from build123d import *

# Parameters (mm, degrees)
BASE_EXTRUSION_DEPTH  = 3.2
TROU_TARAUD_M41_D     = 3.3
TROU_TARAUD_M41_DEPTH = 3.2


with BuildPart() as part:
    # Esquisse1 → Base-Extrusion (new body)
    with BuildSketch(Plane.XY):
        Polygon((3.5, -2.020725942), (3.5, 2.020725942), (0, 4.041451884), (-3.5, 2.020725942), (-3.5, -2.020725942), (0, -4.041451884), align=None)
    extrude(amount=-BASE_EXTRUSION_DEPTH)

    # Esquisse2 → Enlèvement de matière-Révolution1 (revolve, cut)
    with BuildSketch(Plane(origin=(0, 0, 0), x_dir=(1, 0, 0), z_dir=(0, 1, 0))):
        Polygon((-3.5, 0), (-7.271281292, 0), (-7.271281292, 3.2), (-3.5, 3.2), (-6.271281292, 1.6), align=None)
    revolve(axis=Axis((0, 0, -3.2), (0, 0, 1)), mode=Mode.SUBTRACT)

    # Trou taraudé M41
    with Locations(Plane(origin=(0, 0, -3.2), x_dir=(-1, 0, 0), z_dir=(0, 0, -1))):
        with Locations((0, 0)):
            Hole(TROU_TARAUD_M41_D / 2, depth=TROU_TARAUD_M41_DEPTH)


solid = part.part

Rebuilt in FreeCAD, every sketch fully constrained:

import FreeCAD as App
import Part
import Sketcher
from FreeCAD import Vector
Q = App.Units.Quantity

doc = App.newDocument("Part")
body = doc.addObject("PartDesign::Body", "Body")

# Sketch on XY plane
sketch1 = body.newObject("Sketcher::SketchObject", "Sketch")
sketch1.AttachmentSupport = (doc.getObject("XY_Plane"), [""])
sketch1.MapMode = "FlatFace"
sketch1.addGeometry(Part.LineSegment(Vector(3.5, -2, 0), Vector(3.5, 2, 0)), False)
sketch1.addGeometry(Part.LineSegment(Vector(3.5, 2, 0), Vector(0, 4, 0)), False)
sketch1.addGeometry(Part.LineSegment(Vector(0, 4, 0), Vector(-3.5, 2, 0)), False)
sketch1.addGeometry(Part.LineSegment(Vector(-3.5, 2, 0), Vector(-3.5, -2, 0)), False)
sketch1.addGeometry(Part.LineSegment(Vector(-3.5, -2, 0), Vector(0, -4, 0)), False)
sketch1.addGeometry(Part.LineSegment(Vector(0, -4, 0), Vector(3.5, -2, 0)), False)
sketch1.addConstraint(Sketcher.Constraint("Coincident", 0, 2, 1, 1))
sketch1.addConstraint(Sketcher.Constraint("Coincident", 1, 2, 2, 1))
sketch1.addConstraint(Sketcher.Constraint("Coincident", 2, 2, 3, 1))
sketch1.addConstraint(Sketcher.Constraint("Coincident", 3, 2, 4, 1))
sketch1.addConstraint(Sketcher.Constraint("Coincident", 4, 2, 5, 1))
sketch1.addConstraint(Sketcher.Constraint("Coincident", 5, 2, 0, 1))
sketch1.addConstraint(Sketcher.Constraint("Vertical", 0))
sketch1.addConstraint(Sketcher.Constraint("Vertical", 3))
sketch1.addConstraint(Sketcher.Constraint("Symmetric", 0, 2, 3, 2, -1, 1))
sketch1.addConstraint(Sketcher.Constraint("Symmetric", 1, 2, 4, 2, -1, 1))
sketch1.addConstraint(Sketcher.Constraint("PointOnObject", 1, 2, -2))
sketch1.addConstraint(Sketcher.Constraint("Parallel", 2, 5))
sketch1.addConstraint(Sketcher.Constraint("Horizontal", 0, 2, 2, 2))
sketch1.addConstraint(Sketcher.Constraint("Angle", 1, Q("150 deg")))
sketch1.addConstraint(Sketcher.Constraint("DistanceX", 2, 2, 0, 2, Q("7 mm")))
sketch1.addConstraint(Sketcher.Constraint("DistanceY", 0, 1, 0, 2, Q("4.041452 mm")))
pad1 = body.newObject("PartDesign::Pad", "Pad")
pad1.Profile = sketch1
pad1.Length = 3.2
pad1.Reversed = True

# Sketch on XZ plane
sketch2 = body.newObject("Sketcher::SketchObject", "Sketch001")
sketch2.AttachmentSupport = (doc.getObject("XZ_Plane"), [""])
sketch2.MapMode = "FlatFace"
sketch2.addGeometry(Part.LineSegment(Vector(-7.3, 0, 0), Vector(-3.5, 0, 0)), False)
sketch2.addGeometry(Part.LineSegment(Vector(-3.5, 0, 0), Vector(-6.3, -1.6, 0)), False)
sketch2.addGeometry(Part.LineSegment(Vector(-6.3, -1.6, 0), Vector(-3.5, -3.2, 0)), False)
sketch2.addGeometry(Part.LineSegment(Vector(-3.5, -3.2, 0), Vector(-7.3, -3.2, 0)), False)
sketch2.addGeometry(Part.LineSegment(Vector(-7.3, -3.2, 0), Vector(-7.3, 0, 0)), False)
sketch2.addConstraint(Sketcher.Constraint("Coincident", 0, 2, 1, 1))
sketch2.addConstraint(Sketcher.Constraint("Coincident", 1, 2, 2, 1))
sketch2.addConstraint(Sketcher.Constraint("Coincident", 2, 2, 3, 1))
sketch2.addConstraint(Sketcher.Constraint("Coincident", 3, 2, 4, 1))
sketch2.addConstraint(Sketcher.Constraint("Coincident", 4, 2, 0, 1))
sketch2.addConstraint(Sketcher.Constraint("Horizontal", 0))
sketch2.addConstraint(Sketcher.Constraint("Horizontal", 3))
sketch2.addConstraint(Sketcher.Constraint("Vertical", 4))
sketch2.addConstraint(Sketcher.Constraint("PointOnObject", 0, 2, -1))
sketch2.addConstraint(Sketcher.Constraint("Vertical", 0, 2, 2, 2))
sketch2.addConstraint(Sketcher.Constraint("Equal", 1, 2))
sketch2.addConstraint(Sketcher.Constraint("Angle", 1, Q("-150 deg")))
sketch2.addConstraint(Sketcher.Constraint("DistanceY", 4, 1, 4, 2, Q("3.2 mm")))
sketch2.addConstraint(Sketcher.Constraint("DistanceX", 3, 2, 1, 2, Q("1 mm")))
sketch2.addConstraint(Sketcher.Constraint("DistanceX", 0, 2, -1, 1, Q("3.5 mm")))
groove = body.newObject("PartDesign::Groove", "Groove")
groove.Profile = sketch2
groove.ReferenceAxis = (sketch2, ["V_Axis"])
groove.Angle = 360

# Sketch on XY plane
sketch3 = body.newObject("Sketcher::SketchObject", "Sketch002")
sketch3.AttachmentSupport = (doc.getObject("XY_Plane"), [""])
sketch3.MapMode = "FlatFace"
sketch3.AttachmentOffset = App.Placement(Vector(0, 0, -3.2), App.Rotation())
sketch3.addGeometry(Part.Circle(Vector(0, 0, 0), Vector(0, 0, 1), 1.6), False)
sketch3.addConstraint(Sketcher.Constraint("Coincident", 0, 3, -1, 1))
sketch3.addConstraint(Sketcher.Constraint("Diameter", 0, Q("3.3 mm")))
doc.recompute()
hole = body.newObject("PartDesign::Hole", "Hole")
hole.Profile = sketch3
hole.ThreadType = "None"
hole.Diameter = 3.3
hole.DepthType = "Dimension"
hole.Depth = 3.2
hole.DrillPoint = "Flat"
hole.Reversed = True

doc.recompute()
